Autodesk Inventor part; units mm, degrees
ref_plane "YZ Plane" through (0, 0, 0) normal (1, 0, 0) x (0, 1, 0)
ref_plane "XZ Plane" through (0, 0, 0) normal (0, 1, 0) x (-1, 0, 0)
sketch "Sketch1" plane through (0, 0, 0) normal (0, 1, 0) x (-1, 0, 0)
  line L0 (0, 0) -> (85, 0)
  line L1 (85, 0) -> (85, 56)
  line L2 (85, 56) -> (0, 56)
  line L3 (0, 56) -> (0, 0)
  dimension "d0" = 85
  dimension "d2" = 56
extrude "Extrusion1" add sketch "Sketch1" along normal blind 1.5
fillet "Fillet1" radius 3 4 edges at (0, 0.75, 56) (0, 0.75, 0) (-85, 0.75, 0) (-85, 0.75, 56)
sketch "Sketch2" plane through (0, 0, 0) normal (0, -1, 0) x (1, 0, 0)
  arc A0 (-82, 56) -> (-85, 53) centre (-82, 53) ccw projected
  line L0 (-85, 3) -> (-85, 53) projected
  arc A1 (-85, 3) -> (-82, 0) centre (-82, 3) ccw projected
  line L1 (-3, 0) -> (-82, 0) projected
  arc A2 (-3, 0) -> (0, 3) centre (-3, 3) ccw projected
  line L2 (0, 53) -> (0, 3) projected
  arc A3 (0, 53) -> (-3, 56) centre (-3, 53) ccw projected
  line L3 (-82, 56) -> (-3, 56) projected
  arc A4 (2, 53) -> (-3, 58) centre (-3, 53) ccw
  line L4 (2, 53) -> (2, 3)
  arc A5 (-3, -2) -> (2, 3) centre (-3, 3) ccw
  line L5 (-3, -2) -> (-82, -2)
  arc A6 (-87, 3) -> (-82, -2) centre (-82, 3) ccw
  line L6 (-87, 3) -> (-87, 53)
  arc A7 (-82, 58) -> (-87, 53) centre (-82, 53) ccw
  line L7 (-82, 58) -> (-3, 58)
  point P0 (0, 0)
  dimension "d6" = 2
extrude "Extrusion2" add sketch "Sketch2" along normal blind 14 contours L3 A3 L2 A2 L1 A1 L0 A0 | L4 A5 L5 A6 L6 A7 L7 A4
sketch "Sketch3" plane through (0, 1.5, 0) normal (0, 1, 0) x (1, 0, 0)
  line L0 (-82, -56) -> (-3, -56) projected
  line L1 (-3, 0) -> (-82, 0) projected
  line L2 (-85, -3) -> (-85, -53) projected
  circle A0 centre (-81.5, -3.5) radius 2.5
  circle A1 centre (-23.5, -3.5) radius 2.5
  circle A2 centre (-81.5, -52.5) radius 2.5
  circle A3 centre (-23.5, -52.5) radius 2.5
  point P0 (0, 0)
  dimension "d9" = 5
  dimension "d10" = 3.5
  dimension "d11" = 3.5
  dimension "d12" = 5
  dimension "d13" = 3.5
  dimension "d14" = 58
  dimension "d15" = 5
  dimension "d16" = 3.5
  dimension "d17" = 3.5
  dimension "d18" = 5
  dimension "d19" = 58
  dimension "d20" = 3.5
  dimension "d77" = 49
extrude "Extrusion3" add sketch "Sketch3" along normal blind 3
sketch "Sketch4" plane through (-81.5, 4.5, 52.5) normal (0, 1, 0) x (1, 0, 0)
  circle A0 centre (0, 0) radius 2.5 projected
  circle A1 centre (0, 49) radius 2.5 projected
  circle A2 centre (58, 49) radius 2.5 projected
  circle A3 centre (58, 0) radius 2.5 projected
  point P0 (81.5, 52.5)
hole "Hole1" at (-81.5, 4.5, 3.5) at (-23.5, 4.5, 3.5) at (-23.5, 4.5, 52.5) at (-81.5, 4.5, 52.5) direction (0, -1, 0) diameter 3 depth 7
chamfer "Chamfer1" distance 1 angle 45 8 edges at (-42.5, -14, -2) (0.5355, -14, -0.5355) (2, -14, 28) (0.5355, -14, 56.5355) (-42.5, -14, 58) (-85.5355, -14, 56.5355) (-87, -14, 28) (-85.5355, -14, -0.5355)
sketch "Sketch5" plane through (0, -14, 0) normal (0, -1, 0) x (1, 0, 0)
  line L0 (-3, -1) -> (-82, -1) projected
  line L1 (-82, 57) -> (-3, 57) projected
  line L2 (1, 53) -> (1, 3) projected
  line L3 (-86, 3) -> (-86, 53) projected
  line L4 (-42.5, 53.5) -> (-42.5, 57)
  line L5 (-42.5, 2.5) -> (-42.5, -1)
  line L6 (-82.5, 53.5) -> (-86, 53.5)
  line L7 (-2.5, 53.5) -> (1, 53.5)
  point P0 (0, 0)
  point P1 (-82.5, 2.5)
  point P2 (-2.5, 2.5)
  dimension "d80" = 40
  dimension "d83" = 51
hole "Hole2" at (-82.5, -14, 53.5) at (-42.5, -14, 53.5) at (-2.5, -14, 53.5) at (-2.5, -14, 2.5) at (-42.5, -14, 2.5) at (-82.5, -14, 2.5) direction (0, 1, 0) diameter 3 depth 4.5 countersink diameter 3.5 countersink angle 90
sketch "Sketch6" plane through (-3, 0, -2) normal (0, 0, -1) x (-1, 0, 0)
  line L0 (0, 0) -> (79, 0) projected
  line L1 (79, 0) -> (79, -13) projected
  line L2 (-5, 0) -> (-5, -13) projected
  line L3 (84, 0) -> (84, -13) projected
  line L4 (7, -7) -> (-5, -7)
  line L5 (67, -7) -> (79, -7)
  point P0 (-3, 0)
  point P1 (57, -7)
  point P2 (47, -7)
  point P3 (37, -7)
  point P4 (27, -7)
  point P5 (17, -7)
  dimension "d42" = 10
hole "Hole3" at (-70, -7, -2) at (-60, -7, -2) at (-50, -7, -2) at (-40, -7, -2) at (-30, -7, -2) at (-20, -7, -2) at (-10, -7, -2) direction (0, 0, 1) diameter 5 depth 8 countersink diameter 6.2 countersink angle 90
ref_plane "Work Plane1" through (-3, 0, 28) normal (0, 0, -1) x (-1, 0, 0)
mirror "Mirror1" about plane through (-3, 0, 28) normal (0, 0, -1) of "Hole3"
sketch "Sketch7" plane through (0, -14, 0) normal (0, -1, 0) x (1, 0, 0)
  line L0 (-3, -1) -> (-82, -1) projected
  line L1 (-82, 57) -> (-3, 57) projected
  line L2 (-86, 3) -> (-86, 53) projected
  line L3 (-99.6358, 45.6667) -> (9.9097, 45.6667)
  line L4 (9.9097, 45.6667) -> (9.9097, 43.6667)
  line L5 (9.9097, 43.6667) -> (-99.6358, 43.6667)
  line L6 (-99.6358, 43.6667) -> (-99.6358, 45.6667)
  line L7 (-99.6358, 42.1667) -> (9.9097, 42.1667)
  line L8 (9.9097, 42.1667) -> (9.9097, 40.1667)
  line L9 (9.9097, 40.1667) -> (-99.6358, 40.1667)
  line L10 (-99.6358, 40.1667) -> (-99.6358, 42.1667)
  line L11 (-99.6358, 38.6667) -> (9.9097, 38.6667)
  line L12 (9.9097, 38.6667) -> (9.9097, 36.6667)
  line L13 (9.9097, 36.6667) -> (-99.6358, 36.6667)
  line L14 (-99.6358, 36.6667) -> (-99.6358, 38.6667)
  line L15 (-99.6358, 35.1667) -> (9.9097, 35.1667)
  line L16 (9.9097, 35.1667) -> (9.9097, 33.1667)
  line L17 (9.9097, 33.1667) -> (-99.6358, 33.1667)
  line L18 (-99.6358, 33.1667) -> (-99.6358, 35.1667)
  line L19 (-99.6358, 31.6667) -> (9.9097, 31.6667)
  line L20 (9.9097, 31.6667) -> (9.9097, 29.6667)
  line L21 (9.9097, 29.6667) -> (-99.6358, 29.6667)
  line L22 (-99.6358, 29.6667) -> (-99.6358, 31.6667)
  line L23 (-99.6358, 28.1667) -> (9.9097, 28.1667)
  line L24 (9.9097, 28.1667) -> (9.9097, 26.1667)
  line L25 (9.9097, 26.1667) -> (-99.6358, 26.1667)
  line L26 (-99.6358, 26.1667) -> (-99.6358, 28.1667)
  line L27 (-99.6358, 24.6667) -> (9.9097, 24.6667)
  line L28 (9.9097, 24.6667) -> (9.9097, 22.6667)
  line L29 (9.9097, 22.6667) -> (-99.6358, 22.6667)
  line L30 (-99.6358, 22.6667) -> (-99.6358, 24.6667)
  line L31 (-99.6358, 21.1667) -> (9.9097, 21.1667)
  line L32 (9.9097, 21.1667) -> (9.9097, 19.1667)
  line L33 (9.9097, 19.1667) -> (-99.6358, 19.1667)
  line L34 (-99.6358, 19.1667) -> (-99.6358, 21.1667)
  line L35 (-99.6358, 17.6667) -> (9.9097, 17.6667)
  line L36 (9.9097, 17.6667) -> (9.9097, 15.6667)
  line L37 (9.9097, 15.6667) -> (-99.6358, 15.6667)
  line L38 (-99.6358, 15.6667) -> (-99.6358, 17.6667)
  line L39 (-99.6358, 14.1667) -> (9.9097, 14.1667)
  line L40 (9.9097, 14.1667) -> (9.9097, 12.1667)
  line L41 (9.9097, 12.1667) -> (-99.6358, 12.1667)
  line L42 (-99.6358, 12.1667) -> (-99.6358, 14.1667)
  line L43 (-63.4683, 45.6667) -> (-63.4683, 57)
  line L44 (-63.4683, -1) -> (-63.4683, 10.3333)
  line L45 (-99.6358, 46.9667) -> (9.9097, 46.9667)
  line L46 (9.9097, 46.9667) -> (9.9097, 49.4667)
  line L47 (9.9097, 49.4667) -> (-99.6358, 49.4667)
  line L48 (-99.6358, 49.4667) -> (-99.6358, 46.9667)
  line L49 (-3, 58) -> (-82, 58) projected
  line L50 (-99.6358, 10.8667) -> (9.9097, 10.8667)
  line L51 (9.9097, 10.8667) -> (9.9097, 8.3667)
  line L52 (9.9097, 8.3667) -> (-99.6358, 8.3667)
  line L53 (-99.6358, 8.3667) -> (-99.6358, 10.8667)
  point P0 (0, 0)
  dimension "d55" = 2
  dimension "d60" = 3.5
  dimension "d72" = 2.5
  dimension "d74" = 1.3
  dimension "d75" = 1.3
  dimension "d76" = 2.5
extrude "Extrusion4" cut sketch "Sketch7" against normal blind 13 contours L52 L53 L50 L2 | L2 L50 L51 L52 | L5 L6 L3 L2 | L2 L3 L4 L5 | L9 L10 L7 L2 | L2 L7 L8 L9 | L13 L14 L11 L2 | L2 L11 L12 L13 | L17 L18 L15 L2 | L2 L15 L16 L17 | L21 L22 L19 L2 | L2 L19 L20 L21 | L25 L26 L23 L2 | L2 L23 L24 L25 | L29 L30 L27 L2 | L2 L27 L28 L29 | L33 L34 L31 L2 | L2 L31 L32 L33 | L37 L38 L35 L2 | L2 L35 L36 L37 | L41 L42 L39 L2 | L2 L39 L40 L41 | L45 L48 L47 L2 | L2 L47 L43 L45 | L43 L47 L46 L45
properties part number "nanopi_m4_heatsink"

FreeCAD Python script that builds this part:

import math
import FreeCAD as App
import Part
import Sketcher


def edges_at(feature, points):
    """Names of the edges that pass closest to the given points."""
    edges = feature.Shape.Edges
    near = lambda p: min(range(len(edges)), key=lambda i: edges[i].distToShape(Part.Vertex(*p))[0])
    return sorted({f"Edge{near(p) + 1}" for p in points})

doc = App.newDocument("Part")
body = doc.addObject("PartDesign::Body", "Body")

sketch1 = body.newObject("Sketcher::SketchObject", "Sketch")
sketch1.AttachmentSupport = (doc.getObject("XZ_Plane"), [""])
sketch1.MapMode = "FlatFace"
sketch1.addGeometry(Part.LineSegment(App.Vector(0, 56, 0), App.Vector(0, 0, 0)), False)
sketch1.addGeometry(Part.LineSegment(App.Vector(0, 0, 0), App.Vector(-85, 0, 0)), False)
sketch1.addGeometry(Part.LineSegment(App.Vector(-85, 0, 0), App.Vector(-85, 56, 0)), False)
sketch1.addGeometry(Part.LineSegment(App.Vector(-85, 56, 0), App.Vector(0, 56, 0)), False)
sketch1.addConstraint(Sketcher.Constraint("Coincident", 0, 2, 1, 1))
sketch1.addConstraint(Sketcher.Constraint("Coincident", 1, 2, 2, 1))
sketch1.addConstraint(Sketcher.Constraint("Coincident", 2, 2, 3, 1))
sketch1.addConstraint(Sketcher.Constraint("Coincident", 3, 2, 0, 1))
sketch1.addConstraint(Sketcher.Constraint("Vertical", 0))
sketch1.addConstraint(Sketcher.Constraint("Horizontal", 1))
sketch1.addConstraint(Sketcher.Constraint("Vertical", 2))
sketch1.addConstraint(Sketcher.Constraint("Horizontal", 3))
sketch1.addConstraint(Sketcher.Constraint("Coincident", 0, 2, -1, 1))
sketch1.addConstraint(Sketcher.Constraint("DistanceX", 1, 2, 1, 1, 85.0))
sketch1.addConstraint(Sketcher.Constraint("DistanceY", 0, 2, 0, 1, 56.0))
pad1 = body.newObject("PartDesign::Pad", "Pad")
pad1.Profile = sketch1
pad1.Length = 1.5
pad1.Reversed = True
doc.recompute()

fillet = body.newObject("PartDesign::Fillet", "Fillet")
fillet.Base = (pad1, edges_at(pad1, [
    (0, 0.75, 56),
    (0, 0.75, 0),
    (-85, 0.75, 0),
    (-85, 0.75, 56),
]))
fillet.Radius = 3

sketch2 = body.newObject("Sketcher::SketchObject", "Sketch001")
sketch2.AttachmentSupport = (doc.getObject("XZ_Plane"), [""])
sketch2.MapMode = "FlatFace"
sketch2.addGeometry(Part.LineSegment(App.Vector(2, 3, 0), App.Vector(2, 53, 0)), False)
sketch2.addGeometry(Part.ArcOfCircle(Part.Circle(App.Vector(-3, 53, 0), App.Vector(0, 0, 1), 5), math.radians(0), math.radians(90)), False)
sketch2.addGeometry(Part.LineSegment(App.Vector(-3, 58, 0), App.Vector(-82, 58, 0)), False)
sketch2.addGeometry(Part.ArcOfCircle(Part.Circle(App.Vector(-82, 53, 0), App.Vector(0, 0, 1), 5), math.radians(90), math.radians(180)), False)
sketch2.addGeometry(Part.LineSegment(App.Vector(-87, 53, 0), App.Vector(-87, 3, 0)), False)
sketch2.addGeometry(Part.ArcOfCircle(Part.Circle(App.Vector(-82, 3, 0), App.Vector(0, 0, 1), 5), math.radians(180), math.radians(270)), False)
sketch2.addGeometry(Part.LineSegment(App.Vector(-82, -2, 0), App.Vector(-3, -2, 0)), False)
sketch2.addGeometry(Part.ArcOfCircle(Part.Circle(App.Vector(-3, 3, 0), App.Vector(0, 0, 1), 5), math.radians(-90), math.radians(0)), False)
sketch2.addConstraint(Sketcher.Constraint("Tangent", 0, 2, 1, 1))
sketch2.addConstraint(Sketcher.Constraint("Tangent", 1, 2, 2, 1))
sketch2.addConstraint(Sketcher.Constraint("Tangent", 2, 2, 3, 1))
sketch2.addConstraint(Sketcher.Constraint("Tangent", 3, 2, 4, 1))
sketch2.addConstraint(Sketcher.Constraint("Tangent", 4, 2, 5, 1))
sketch2.addConstraint(Sketcher.Constraint("Tangent", 5, 2, 6, 1))
sketch2.addConstraint(Sketcher.Constraint("Tangent", 6, 2, 7, 1))
sketch2.addConstraint(Sketcher.Constraint("Tangent", 7, 2, 0, 1))
sketch2.addConstraint(Sketcher.Constraint("Vertical", 0))
sketch2.addConstraint(Sketcher.Constraint("Horizontal", 2))
sketch2.addConstraint(Sketcher.Constraint("Vertical", 4))
sketch2.addConstraint(Sketcher.Constraint("Horizontal", 6))
sketch2.addConstraint(Sketcher.Constraint("Equal", 1, 3))
sketch2.addConstraint(Sketcher.Constraint("Equal", 3, 5))
sketch2.addConstraint(Sketcher.Constraint("Equal", 5, 7))
sketch2.addConstraint(Sketcher.Constraint("DistanceX", -1, 1, 0, 2, 2.0))
sketch2.addConstraint(Sketcher.Constraint("DistanceY", 5, 2, -1, 1, 2.0))
sketch2.addConstraint(Sketcher.Constraint("Radius", 1, 5.0))
sketch2.addConstraint(Sketcher.Constraint("DistanceX", 2, 2, 2, 1, 79.0))
sketch2.addConstraint(Sketcher.Constraint("DistanceY", 0, 1, 0, 2, 50.0))
pad2 = body.newObject("PartDesign::Pad", "Pad001")
pad2.Profile = sketch2
pad2.Length = 14

sketch3 = body.newObject("Sketcher::SketchObject", "Sketch002")
sketch3.AttachmentSupport = (doc.getObject("XZ_Plane"), [""])
sketch3.MapMode = "FlatFace"
sketch3.AttachmentOffset = App.Placement(App.Vector(0, 0, -1.5), App.Rotation())
sketch3.addGeometry(Part.Circle(App.Vector(-81.5, 3.5, 0), App.Vector(0, 0, 1), 2.5), False)
sketch3.addGeometry(Part.Circle(App.Vector(-23.5, 3.5, 0), App.Vector(0, 0, 1), 2.5), False)
sketch3.addGeometry(Part.Circle(App.Vector(-81.5, 52.5, 0), App.Vector(0, 0, 1), 2.5), False)
sketch3.addGeometry(Part.Circle(App.Vector(-23.5, 52.5, 0), App.Vector(0, 0, 1), 2.5), False)
sketch3.addConstraint(Sketcher.Constraint("Equal", 0, 1))
sketch3.addConstraint(Sketcher.Constraint("Equal", 1, 2))
sketch3.addConstraint(Sketcher.Constraint("Equal", 2, 3))
sketch3.addConstraint(Sketcher.Constraint("Horizontal", 0, 3, 1, 3))
sketch3.addConstraint(Sketcher.Constraint("Horizontal", 2, 3, 3, 3))
sketch3.addConstraint(Sketcher.Constraint("Vertical", 0, 3, 2, 3))
sketch3.addConstraint(Sketcher.Constraint("Vertical", 1, 3, 3, 3))
sketch3.addConstraint(Sketcher.Constraint("Diameter", 0, 5.0))
sketch3.addConstraint(Sketcher.Constraint("DistanceX", 0, 3, 1, 3, 58.0))
sketch3.addConstraint(Sketcher.Constraint("DistanceY", 0, 3, 2, 3, 49.0))
sketch3.addConstraint(Sketcher.Constraint("DistanceY", -1, 1, 0, 3, 3.5))
sketch3.addConstraint(Sketcher.Constraint("DistanceX", 0, 3, -1, 1, 81.5))
pad3 = body.newObject("PartDesign::Pad", "Pad002")
pad3.Profile = sketch3
pad3.Length = 3
pad3.Reversed = True

sketch4 = body.newObject("Sketcher::SketchObject", "Sketch003")
sketch4.AttachmentSupport = (doc.getObject("XZ_Plane"), [""])
sketch4.MapMode = "FlatFace"
sketch4.AttachmentOffset = App.Placement(App.Vector(0, 0, -4.5), App.Rotation())
sketch4.addGeometry(Part.Circle(App.Vector(-81.5, 3.5, 0), App.Vector(0, 0, 1), 1.5), False)
sketch4.addGeometry(Part.Circle(App.Vector(-23.5, 3.5, 0), App.Vector(0, 0, 1), 1.5), False)
sketch4.addGeometry(Part.Circle(App.Vector(-23.5, 52.5, 0), App.Vector(0, 0, 1), 1.5), False)
sketch4.addGeometry(Part.Circle(App.Vector(-81.5, 52.5, 0), App.Vector(0, 0, 1), 1.5), False)
sketch4.addConstraint(Sketcher.Constraint("Equal", 0, 1))
sketch4.addConstraint(Sketcher.Constraint("Equal", 1, 2))
sketch4.addConstraint(Sketcher.Constraint("Equal", 2, 3))
sketch4.addConstraint(Sketcher.Constraint("Horizontal", 0, 3, 1, 3))
sketch4.addConstraint(Sketcher.Constraint("Horizontal", 2, 3, 3, 3))
sketch4.addConstraint(Sketcher.Constraint("Vertical", 1, 3, 2, 3))
sketch4.addConstraint(Sketcher.Constraint("Vertical", 0, 3, 3, 3))
sketch4.addConstraint(Sketcher.Constraint("Diameter", 0, 3.0))
sketch4.addConstraint(Sketcher.Constraint("DistanceX", 0, 3, 1, 3, 58.0))
sketch4.addConstraint(Sketcher.Constraint("DistanceY", 1, 3, 2, 3, 49.0))
sketch4.addConstraint(Sketcher.Constraint("DistanceX", 0, 3, -1, 1, 81.5))
sketch4.addConstraint(Sketcher.Constraint("DistanceY", -1, 1, 0, 3, 3.5))
doc.recompute()
hole = body.newObject("PartDesign::Hole", "Hole")
hole.Profile = sketch4
hole.ThreadType = "None"
hole.Diameter = 3
hole.DepthType = "Dimension"
hole.Depth = 7
hole.DrillPoint = "Flat"
hole.Reversed = True
doc.recompute()

chamfer = body.newObject("PartDesign::Chamfer", "Chamfer")
chamfer.Base = (hole, edges_at(hole, [
    (-42.5, -14, -2),
    (0.535, -14, -0.535),
    (2, -14, 28),
    (0.535, -14, 56.535),
    (-42.5, -14, 58),
    (-85.535, -14, 56.535),
    (-87, -14, 28),
    (-85.535, -14, -0.535),
]))
chamfer.Size = 1

sketch5 = body.newObject("Sketcher::SketchObject", "Sketch004")
sketch5.AttachmentSupport = (doc.getObject("XZ_Plane"), [""])
sketch5.MapMode = "FlatFace"
sketch5.AttachmentOffset = App.Placement(App.Vector(0, 0, 14), App.Rotation())
sketch5.addGeometry(Part.Circle(App.Vector(-82.5, 53.5, 0), App.Vector(0, 0, 1), 1.5), False)
sketch5.addGeometry(Part.Circle(App.Vector(-42.5, 53.5, 0), App.Vector(0, 0, 1), 1.5), False)
sketch5.addGeometry(Part.Circle(App.Vector(-2.5, 53.5, 0), App.Vector(0, 0, 1), 1.5), False)
sketch5.addGeometry(Part.Circle(App.Vector(-2.5, 2.5, 0), App.Vector(0, 0, 1), 1.5), False)
sketch5.addGeometry(Part.Circle(App.Vector(-42.5, 2.5, 0), App.Vector(0, 0, 1), 1.5), False)
sketch5.addGeometry(Part.Circle(App.Vector(-82.5, 2.5, 0), App.Vector(0, 0, 1), 1.5), False)
sketch5.addConstraint(Sketcher.Constraint("Equal", 0, 1))
sketch5.addConstraint(Sketcher.Constraint("Equal", 1, 2))
sketch5.addConstraint(Sketcher.Constraint("Equal", 2, 3))
sketch5.addConstraint(Sketcher.Constraint("Equal", 3, 4))
sketch5.addConstraint(Sketcher.Constraint("Equal", 4, 5))
sketch5.addConstraint(Sketcher.Constraint("Horizontal", 0, 3, 1, 3))
sketch5.addConstraint(Sketcher.Constraint("Horizontal", 1, 3, 2, 3))
sketch5.addConstraint(Sketcher.Constraint("Horizontal", 3, 3, 4, 3))
sketch5.addConstraint(Sketcher.Constraint("Horizontal", 4, 3, 5, 3))
sketch5.addConstraint(Sketcher.Constraint("Vertical", 2, 3, 3, 3))
sketch5.addConstraint(Sketcher.Constraint("Vertical", 1, 3, 4, 3))
sketch5.addConstraint(Sketcher.Constraint("Vertical", 0, 3, 5, 3))
sketch5.addConstraint(Sketcher.Constraint("Diameter", 0, 3.0))
sketch5.addConstraint(Sketcher.Constraint("DistanceX", 0, 3, 1, 3, 40.0))
sketch5.addConstraint(Sketcher.Constraint("DistanceX", 1, 3, 2, 3, 40.0))
sketch5.addConstraint(Sketcher.Constraint("DistanceY", 3, 3, 2, 3, 51.0))
sketch5.addConstraint(Sketcher.Constraint("DistanceX", 0, 3, -1, 1, 82.5))
sketch5.addConstraint(Sketcher.Constraint("DistanceY", -1, 1, 0, 3, 53.5))
doc.recompute()
hole2 = body.newObject("PartDesign::Hole", "Hole001")
hole2.Profile = sketch5
hole2.ThreadType = "None"
hole2.Diameter = 3
hole2.DepthType = "Dimension"
hole2.Depth = 4.5
hole2.DrillPoint = "Flat"
hole2.HoleCutType = "Countersink"
hole2.HoleCutDiameter = 3.5
hole2.HoleCutCountersinkAngle = 90

sketch6 = body.newObject("Sketcher::SketchObject", "Sketch005")
sketch6.AttachmentSupport = (doc.getObject("XY_Plane"), [""])
sketch6.MapMode = "FlatFace"
sketch6.AttachmentOffset = App.Placement(App.Vector(0, 0, -2), App.Rotation())
sketch6.addGeometry(Part.Circle(App.Vector(-70, -7, 0), App.Vector(0, 0, 1), 2.5), False)
sketch6.addGeometry(Part.Circle(App.Vector(-60, -7, 0), App.Vector(0, 0, 1), 2.5), False)
sketch6.addGeometry(Part.Circle(App.Vector(-50, -7, 0), App.Vector(0, 0, 1), 2.5), False)
sketch6.addGeometry(Part.Circle(App.Vector(-40, -7, 0), App.Vector(0, 0, 1), 2.5), False)
sketch6.addGeometry(Part.Circle(App.Vector(-30, -7, 0), App.Vector(0, 0, 1), 2.5), False)
sketch6.addGeometry(Part.Circle(App.Vector(-20, -7, 0), App.Vector(0, 0, 1), 2.5), False)
sketch6.addGeometry(Part.Circle(App.Vector(-10, -7, 0), App.Vector(0, 0, 1), 2.5), False)
sketch6.addConstraint(Sketcher.Constraint("Equal", 0, 1))
sketch6.addConstraint(Sketcher.Constraint("Equal", 1, 2))
sketch6.addConstraint(Sketcher.Constraint("Equal", 2, 3))
sketch6.addConstraint(Sketcher.Constraint("Equal", 3, 4))
sketch6.addConstraint(Sketcher.Constraint("Equal", 4, 5))
sketch6.addConstraint(Sketcher.Constraint("Equal", 5, 6))
sketch6.addConstraint(Sketcher.Constraint("Horizontal", 0, 3, 1, 3))
sketch6.addConstraint(Sketcher.Constraint("Horizontal", 1, 3, 2, 3))
sketch6.addConstraint(Sketcher.Constraint("Horizontal", 2, 3, 3, 3))
sketch6.addConstraint(Sketcher.Constraint("Horizontal", 3, 3, 4, 3))
sketch6.addConstraint(Sketcher.Constraint("Horizontal", 4, 3, 5, 3))
sketch6.addConstraint(Sketcher.Constraint("Horizontal", 5, 3, 6, 3))
sketch6.addConstraint(Sketcher.Constraint("Diameter", 0, 5.0))
sketch6.addConstraint(Sketcher.Constraint("DistanceX", 0, 3, -1, 1, 70.0))
sketch6.addConstraint(Sketcher.Constraint("DistanceY", 0, 3, -1, 1, 7.0))
sketch6.addConstraint(Sketcher.Constraint("DistanceX", 1, 3, -1, 1, 60.0))
sketch6.addConstraint(Sketcher.Constraint("DistanceX", 2, 3, -1, 1, 50.0))
sketch6.addConstraint(Sketcher.Constraint("DistanceX", 3, 3, -1, 1, 40.0))
sketch6.addConstraint(Sketcher.Constraint("DistanceX", 4, 3, -1, 1, 30.0))
sketch6.addConstraint(Sketcher.Constraint("DistanceX", 5, 3, -1, 1, 20.0))
sketch6.addConstraint(Sketcher.Constraint("DistanceX", 6, 3, -1, 1, 10.0))
doc.recompute()
hole3 = body.newObject("PartDesign::Hole", "Hole002")
hole3.Profile = sketch6
hole3.ThreadType = "None"
hole3.Diameter = 5
hole3.DepthType = "Dimension"
hole3.Depth = 8
hole3.DrillPoint = "Flat"
hole3.HoleCutType = "Countersink"
hole3.HoleCutDiameter = 6.2
hole3.HoleCutCountersinkAngle = 90
hole3.Reversed = True
doc.recompute()

datumplane = body.newObject("PartDesign::Plane", "DatumPlane")
datumplane.AttachmentSupport = (doc.getObject("XY_Plane"), [""])
datumplane.MapMode = "FlatFace"
datumplane.AttachmentOffset = App.Placement(App.Vector(0, 0, 28), App.Rotation())
mirrored = body.newObject("PartDesign::Mirrored", "Mirrored")
mirrored.Originals = [hole3]
mirrored.MirrorPlane = (datumplane, [""])
body.Tip = mirrored

sketch7 = body.newObject("Sketcher::SketchObject", "Sketch006")
sketch7.AttachmentSupport = (doc.getObject("XZ_Plane"), [""])
sketch7.MapMode = "FlatFace"
sketch7.AttachmentOffset = App.Placement(App.Vector(0, 0, 14), App.Rotation())
sketch7.addGeometry(Part.LineSegment(App.Vector(-99.6, 8.4, 0), App.Vector(9.9, 8.4, 0)), False)
sketch7.addGeometry(Part.LineSegment(App.Vector(9.9, 8.4, 0), App.Vector(9.9, 10.9, 0)), False)
sketch7.addGeometry(Part.LineSegment(App.Vector(9.9, 10.9, 0), App.Vector(-99.6, 10.9, 0)), False)
sketch7.addGeometry(Part.LineSegment(App.Vector(-99.6, 10.9, 0), App.Vector(-99.6, 8.4, 0)), False)
sketch7.addGeometry(Part.LineSegment(App.Vector(-99.6, 43.7, 0), App.Vector(9.9, 43.7, 0)), False)
sketch7.addGeometry(Part.LineSegment(App.Vector(9.9, 43.7, 0), App.Vector(9.9, 45.7, 0)), False)
sketch7.addGeometry(Part.LineSegment(App.Vector(9.9, 45.7, 0), App.Vector(-99.6, 45.7, 0)), False)
sketch7.addGeometry(Part.LineSegment(App.Vector(-99.6, 45.7, 0), App.Vector(-99.6, 43.7, 0)), False)
sketch7.addGeometry(Part.LineSegment(App.Vector(-99.6, 40.2, 0), App.Vector(9.9, 40.2, 0)), False)
sketch7.addGeometry(Part.LineSegment(App.Vector(9.9, 40.2, 0), App.Vector(9.9, 42.2, 0)), False)
sketch7.addGeometry(Part.LineSegment(App.Vector(9.9, 42.2, 0), App.Vector(-99.6, 42.2, 0)), False)
sketch7.addGeometry(Part.LineSegment(App.Vector(-99.6, 42.2, 0), App.Vector(-99.6, 40.2, 0)), False)
sketch7.addGeometry(Part.LineSegment(App.Vector(-99.6, 36.7, 0), App.Vector(9.9, 36.7, 0)), False)
sketch7.addGeometry(Part.LineSegment(App.Vector(9.9, 36.7, 0), App.Vector(9.9, 38.7, 0)), False)
sketch7.addGeometry(Part.LineSegment(App.Vector(9.9, 38.7, 0), App.Vector(-99.6, 38.7, 0)), False)
sketch7.addGeometry(Part.LineSegment(App.Vector(-99.6, 38.7, 0), App.Vector(-99.6, 36.7, 0)), False)
sketch7.addGeometry(Part.LineSegment(App.Vector(-99.6, 33.2, 0), App.Vector(9.9, 33.2, 0)), False)
sketch7.addGeometry(Part.LineSegment(App.Vector(9.9, 33.2, 0), App.Vector(9.9, 35.2, 0)), False)
sketch7.addGeometry(Part.LineSegment(App.Vector(9.9, 35.2, 0), App.Vector(-99.6, 35.2, 0)), False)
sketch7.addGeometry(Part.LineSegment(App.Vector(-99.6, 35.2, 0), App.Vector(-99.6, 33.2, 0)), False)
sketch7.addGeometry(Part.LineSegment(App.Vector(-99.6, 29.7, 0), App.Vector(9.9, 29.7, 0)), False)
sketch7.addGeometry(Part.LineSegment(App.Vector(9.9, 29.7, 0), App.Vector(9.9, 31.7, 0)), False)
sketch7.addGeometry(Part.LineSegment(App.Vector(9.9, 31.7, 0), App.Vector(-99.6, 31.7, 0)), False)
sketch7.addGeometry(Part.LineSegment(App.Vector(-99.6, 31.7, 0), App.Vector(-99.6, 29.7, 0)), False)
sketch7.addGeometry(Part.LineSegment(App.Vector(-99.6, 26.2, 0), App.Vector(9.9, 26.2, 0)), False)
sketch7.addGeometry(Part.LineSegment(App.Vector(9.9, 26.2, 0), App.Vector(9.9, 28.2, 0)), False)
sketch7.addGeometry(Part.LineSegment(App.Vector(9.9, 28.2, 0), App.Vector(-99.6, 28.2, 0)), False)
sketch7.addGeometry(Part.LineSegment(App.Vector(-99.6, 28.2, 0), App.Vector(-99.6, 26.2, 0)), False)
sketch7.addGeometry(Part.LineSegment(App.Vector(-99.6, 22.7, 0), App.Vector(9.9, 22.7, 0)), False)
sketch7.addGeometry(Part.LineSegment(App.Vector(9.9, 22.7, 0), App.Vector(9.9, 24.7, 0)), False)
sketch7.addGeometry(Part.LineSegment(App.Vector(9.9, 24.7, 0), App.Vector(-99.6, 24.7, 0)), False)
sketch7.addGeometry(Part.LineSegment(App.Vector(-99.6, 24.7, 0), App.Vector(-99.6, 22.7, 0)), False)
sketch7.addGeometry(Part.LineSegment(App.Vector(-99.6, 19.2, 0), App.Vector(9.9, 19.2, 0)), False)
sketch7.addGeometry(Part.LineSegment(App.Vector(9.9, 19.2, 0), App.Vector(9.9, 21.2, 0)), False)
sketch7.addGeometry(Part.LineSegment(App.Vector(9.9, 21.2, 0), App.Vector(-99.6, 21.2, 0)), False)
sketch7.addGeometry(Part.LineSegment(App.Vector(-99.6, 21.2, 0), App.Vector(-99.6, 19.2, 0)), False)
sketch7.addGeometry(Part.LineSegment(App.Vector(-99.6, 15.7, 0), App.Vector(9.9, 15.7, 0)), False)
sketch7.addGeometry(Part.LineSegment(App.Vector(9.9, 15.7, 0), App.Vector(9.9, 17.7, 0)), False)
sketch7.addGeometry(Part.LineSegment(App.Vector(9.9, 17.7, 0), App.Vector(-99.6, 17.7, 0)), False)
sketch7.addGeometry(Part.LineSegment(App.Vector(-99.6, 17.7, 0), App.Vector(-99.6, 15.7, 0)), False)
sketch7.addGeometry(Part.LineSegment(App.Vector(-99.6, 12.2, 0), App.Vector(9.9, 12.2, 0)), False)
sketch7.addGeometry(Part.LineSegment(App.Vector(9.9, 12.2, 0), App.Vector(9.9, 14.2, 0)), False)
sketch7.addGeometry(Part.LineSegment(App.Vector(9.9, 14.2, 0), App.Vector(-99.6, 14.2, 0)), False)
sketch7.addGeometry(Part.LineSegment(App.Vector(-99.6, 14.2, 0), App.Vector(-99.6, 12.2, 0)), False)
sketch7.addGeometry(Part.LineSegment(App.Vector(-99.6, 47, 0), App.Vector(9.9, 47, 0)), False)
sketch7.addGeometry(Part.LineSegment(App.Vector(9.9, 47, 0), App.Vector(9.9, 49.5, 0)), False)
sketch7.addGeometry(Part.LineSegment(App.Vector(9.9, 49.5, 0), App.Vector(-99.6, 49.5, 0)), False)
sketch7.addGeometry(Part.LineSegment(App.Vector(-99.6, 49.5, 0), App.Vector(-99.6, 47, 0)), False)
sketch7.addConstraint(Sketcher.Constraint("Coincident", 0, 2, 1, 1))
sketch7.addConstraint(Sketcher.Constraint("Coincident", 1, 2, 2, 1))
sketch7.addConstraint(Sketcher.Constraint("Coincident", 2, 2, 3, 1))
sketch7.addConstraint(Sketcher.Constraint("Coincident", 3, 2, 0, 1))
sketch7.addConstraint(Sketcher.Constraint("Coincident", 4, 2, 5, 1))
sketch7.addConstraint(Sketcher.Constraint("Coincident", 5, 2, 6, 1))
sketch7.addConstraint(Sketcher.Constraint("Coincident", 6, 2, 7, 1))
sketch7.addConstraint(Sketcher.Constraint("Coincident", 7, 2, 4, 1))
sketch7.addConstraint(Sketcher.Constraint("Coincident", 8, 2, 9, 1))
sketch7.addConstraint(Sketcher.Constraint("Coincident", 9, 2, 10, 1))
sketch7.addConstraint(Sketcher.Constraint("Coincident", 10, 2, 11, 1))
sketch7.addConstraint(Sketcher.Constraint("Coincident", 11, 2, 8, 1))
sketch7.addConstraint(Sketcher.Constraint("Coincident", 12, 2, 13, 1))
sketch7.addConstraint(Sketcher.Constraint("Coincident", 13, 2, 14, 1))
sketch7.addConstraint(Sketcher.Constraint("Coincident", 14, 2, 15, 1))
sketch7.addConstraint(Sketcher.Constraint("Coincident", 15, 2, 12, 1))
sketch7.addConstraint(Sketcher.Constraint("Coincident", 16, 2, 17, 1))
sketch7.addConstraint(Sketcher.Constraint("Coincident", 17, 2, 18, 1))
sketch7.addConstraint(Sketcher.Constraint("Coincident", 18, 2, 19, 1))
sketch7.addConstraint(Sketcher.Constraint("Coincident", 19, 2, 16, 1))
sketch7.addConstraint(Sketcher.Constraint("Coincident", 20, 2, 21, 1))
sketch7.addConstraint(Sketcher.Constraint("Coincident", 21, 2, 22, 1))
sketch7.addConstraint(Sketcher.Constraint("Coincident", 22, 2, 23, 1))
sketch7.addConstraint(Sketcher.Constraint("Coincident", 23, 2, 20, 1))
sketch7.addConstraint(Sketcher.Constraint("Coincident", 24, 2, 25, 1))
sketch7.addConstraint(Sketcher.Constraint("Coincident", 25, 2, 26, 1))
sketch7.addConstraint(Sketcher.Constraint("Coincident", 26, 2, 27, 1))
sketch7.addConstraint(Sketcher.Constraint("Coincident", 27, 2, 24, 1))
sketch7.addConstraint(Sketcher.Constraint("Coincident", 28, 2, 29, 1))
sketch7.addConstraint(Sketcher.Constraint("Coincident", 29, 2, 30, 1))
sketch7.addConstraint(Sketcher.Constraint("Coincident", 30, 2, 31, 1))
sketch7.addConstraint(Sketcher.Constraint("Coincident", 31, 2, 28, 1))
sketch7.addConstraint(Sketcher.Constraint("Coincident", 32, 2, 33, 1))
sketch7.addConstraint(Sketcher.Constraint("Coincident", 33, 2, 34, 1))
sketch7.addConstraint(Sketcher.Constraint("Coincident", 34, 2, 35, 1))
sketch7.addConstraint(Sketcher.Constraint("Coincident", 35, 2, 32, 1))
sketch7.addConstraint(Sketcher.Constraint("Coincident", 36, 2, 37, 1))
sketch7.addConstraint(Sketcher.Constraint("Coincident", 37, 2, 38, 1))
sketch7.addConstraint(Sketcher.Constraint("Coincident", 38, 2, 39, 1))
sketch7.addConstraint(Sketcher.Constraint("Coincident", 39, 2, 36, 1))
sketch7.addConstraint(Sketcher.Constraint("Coincident", 40, 2, 41, 1))
sketch7.addConstraint(Sketcher.Constraint("Coincident", 41, 2, 42, 1))
sketch7.addConstraint(Sketcher.Constraint("Coincident", 42, 2, 43, 1))
sketch7.addConstraint(Sketcher.Constraint("Coincident", 43, 2, 40, 1))
sketch7.addConstraint(Sketcher.Constraint("Coincident", 44, 2, 45, 1))
sketch7.addConstraint(Sketcher.Constraint("Coincident", 45, 2, 46, 1))
sketch7.addConstraint(Sketcher.Constraint("Coincident", 46, 2, 47, 1))
sketch7.addConstraint(Sketcher.Constraint("Coincident", 47, 2, 44, 1))
sketch7.addConstraint(Sketcher.Constraint("Horizontal", 0))
sketch7.addConstraint(Sketcher.Constraint("Vertical", 1))
sketch7.addConstraint(Sketcher.Constraint("Horizontal", 2))
sketch7.addConstraint(Sketcher.Constraint("Vertical", 3))
sketch7.addConstraint(Sketcher.Constraint("Horizontal", 4))
sketch7.addConstraint(Sketcher.Constraint("Vertical", 5))
sketch7.addConstraint(Sketcher.Constraint("Horizontal", 6))
sketch7.addConstraint(Sketcher.Constraint("Vertical", 7))
sketch7.addConstraint(Sketcher.Constraint("Horizontal", 8))
sketch7.addConstraint(Sketcher.Constraint("Vertical", 9))
sketch7.addConstraint(Sketcher.Constraint("Horizontal", 10))
sketch7.addConstraint(Sketcher.Constraint("Vertical", 11))
sketch7.addConstraint(Sketcher.Constraint("Horizontal", 12))
sketch7.addConstraint(Sketcher.Constraint("Vertical", 13))
sketch7.addConstraint(Sketcher.Constraint("Horizontal", 14))
sketch7.addConstraint(Sketcher.Constraint("Vertical", 15))
sketch7.addConstraint(Sketcher.Constraint("Horizontal", 16))
sketch7.addConstraint(Sketcher.Constraint("Vertical", 17))
sketch7.addConstraint(Sketcher.Constraint("Horizontal", 18))
sketch7.addConstraint(Sketcher.Constraint("Vertical", 19))
sketch7.addConstraint(Sketcher.Constraint("Horizontal", 20))
sketch7.addConstraint(Sketcher.Constraint("Vertical", 21))
sketch7.addConstraint(Sketcher.Constraint("Horizontal", 22))
sketch7.addConstraint(Sketcher.Constraint("Vertical", 23))
sketch7.addConstraint(Sketcher.Constraint("Horizontal", 24))
sketch7.addConstraint(Sketcher.Constraint("Vertical", 25))
sketch7.addConstraint(Sketcher.Constraint("Horizontal", 26))
sketch7.addConstraint(Sketcher.Constraint("Vertical", 27))
sketch7.addConstraint(Sketcher.Constraint("Horizontal", 28))
sketch7.addConstraint(Sketcher.Constraint("Vertical", 29))
sketch7.addConstraint(Sketcher.Constraint("Horizontal", 30))
sketch7.addConstraint(Sketcher.Constraint("Vertical", 31))
sketch7.addConstraint(Sketcher.Constraint("Horizontal", 32))
sketch7.addConstraint(Sketcher.Constraint("Vertical", 33))
sketch7.addConstraint(Sketcher.Constraint("Horizontal", 34))
sketch7.addConstraint(Sketcher.Constraint("Vertical", 35))
sketch7.addConstraint(Sketcher.Constraint("Horizontal", 36))
sketch7.addConstraint(Sketcher.Constraint("Vertical", 37))
sketch7.addConstraint(Sketcher.Constraint("Horizontal", 38))
sketch7.addConstraint(Sketcher.Constraint("Vertical", 39))
sketch7.addConstraint(Sketcher.Constraint("Horizontal", 40))
sketch7.addConstraint(Sketcher.Constraint("Vertical", 41))
sketch7.addConstraint(Sketcher.Constraint("Horizontal", 42))
sketch7.addConstraint(Sketcher.Constraint("Vertical", 43))
sketch7.addConstraint(Sketcher.Constraint("Horizontal", 44))
sketch7.addConstraint(Sketcher.Constraint("Vertical", 45))
sketch7.addConstraint(Sketcher.Constraint("Horizontal", 46))
sketch7.addConstraint(Sketcher.Constraint("Vertical", 47))
sketch7.addConstraint(Sketcher.Constraint("Vertical", 1, 2, 4, 2))
sketch7.addConstraint(Sketcher.Constraint("Vertical", 3, 2, 6, 2))
sketch7.addConstraint(Sketcher.Constraint("Vertical", 5, 2, 8, 2))
sketch7.addConstraint(Sketcher.Constraint("Vertical", 7, 2, 10, 2))
sketch7.addConstraint(Sketcher.Constraint("Vertical", 9, 2, 12, 2))
sketch7.addConstraint(Sketcher.Constraint("Vertical", 11, 2, 14, 2))
sketch7.addConstraint(Sketcher.Constraint("Vertical", 13, 2, 16, 2))
sketch7.addConstraint(Sketcher.Constraint("Vertical", 15, 2, 18, 2))
sketch7.addConstraint(Sketcher.Constraint("Vertical", 17, 2, 20, 2))
sketch7.addConstraint(Sketcher.Constraint("Vertical", 19, 2, 22, 2))
sketch7.addConstraint(Sketcher.Constraint("Vertical", 21, 2, 24, 2))
sketch7.addConstraint(Sketcher.Constraint("Vertical", 23, 2, 26, 2))
sketch7.addConstraint(Sketcher.Constraint("Vertical", 25, 2, 28, 2))
sketch7.addConstraint(Sketcher.Constraint("Vertical", 27, 2, 30, 2))
sketch7.addConstraint(Sketcher.Constraint("Vertical", 29, 2, 32, 2))
sketch7.addConstraint(Sketcher.Constraint("Vertical", 31, 2, 34, 2))
sketch7.addConstraint(Sketcher.Constraint("Vertical", 33, 2, 36, 2))
sketch7.addConstraint(Sketcher.Constraint("Vertical", 35, 2, 38, 2))
sketch7.addConstraint(Sketcher.Constraint("Vertical", 37, 2, 40, 2))
sketch7.addConstraint(Sketcher.Constraint("Vertical", 39, 2, 42, 2))
sketch7.addConstraint(Sketcher.Constraint("Vertical", 41, 2, 44, 2))
sketch7.addConstraint(Sketcher.Constraint("Vertical", 43, 2, 46, 2))
sketch7.addConstraint(Sketcher.Constraint("Equal", 7, 9))
sketch7.addConstraint(Sketcher.Constraint("Equal", 11, 13))
sketch7.addConstraint(Sketcher.Constraint("Equal", 15, 17))
sketch7.addConstraint(Sketcher.Constraint("Equal", 19, 21))
sketch7.addConstraint(Sketcher.Constraint("Equal", 23, 25))
sketch7.addConstraint(Sketcher.Constraint("Equal", 27, 29))
sketch7.addConstraint(Sketcher.Constraint("Equal", 31, 33))
sketch7.addConstraint(Sketcher.Constraint("Equal", 35, 37))
sketch7.addConstraint(Sketcher.Constraint("Equal", 39, 41))
sketch7.addConstraint(Sketcher.Constraint("Equal", 3, 45))
sketch7.addConstraint(Sketcher.Constraint("DistanceY", 5, 1, 5, 2, 2.0))
sketch7.addConstraint(Sketcher.Constraint("DistanceY", 1, 1, 1, 2, 2.5))
sketch7.addConstraint(Sketcher.Constraint("DistanceY", 8, 2, 4, 2, 3.5))
sketch7.addConstraint(Sketcher.Constraint("DistanceY", 12, 2, 8, 2, 3.5))
sketch7.addConstraint(Sketcher.Constraint("DistanceY", 16, 2, 12, 2, 3.5))
sketch7.addConstraint(Sketcher.Constraint("DistanceY", 20, 2, 16, 2, 3.5))
sketch7.addConstraint(Sketcher.Constraint("DistanceY", 24, 2, 20, 2, 3.5))
sketch7.addConstraint(Sketcher.Constraint("DistanceY", 28, 2, 24, 2, 3.5))
sketch7.addConstraint(Sketcher.Constraint("DistanceY", 32, 2, 28, 2, 3.5))
sketch7.addConstraint(Sketcher.Constraint("DistanceY", 36, 2, 32, 2, 3.5))
sketch7.addConstraint(Sketcher.Constraint("DistanceY", 1, 2, 40, 2, 1.3))
sketch7.addConstraint(Sketcher.Constraint("DistanceY", 40, 2, 36, 2, 3.5))
sketch7.addConstraint(Sketcher.Constraint("DistanceY", 5, 2, 44, 2, 1.3))
sketch7.addConstraint(Sketcher.Constraint("DistanceX", 0, 1, 0, 2, 109.5455))
sketch7.addConstraint(Sketcher.Constraint("DistanceX", -1, 1, 0, 2, 9.9097))
sketch7.addConstraint(Sketcher.Constraint("DistanceY", -1, 1, 0, 2, 8.3667))
pocket1 = body.newObject("PartDesign::Pocket", "Pocket")
pocket1.Profile = sketch7
pocket1.Length = 13

doc.recompute()
